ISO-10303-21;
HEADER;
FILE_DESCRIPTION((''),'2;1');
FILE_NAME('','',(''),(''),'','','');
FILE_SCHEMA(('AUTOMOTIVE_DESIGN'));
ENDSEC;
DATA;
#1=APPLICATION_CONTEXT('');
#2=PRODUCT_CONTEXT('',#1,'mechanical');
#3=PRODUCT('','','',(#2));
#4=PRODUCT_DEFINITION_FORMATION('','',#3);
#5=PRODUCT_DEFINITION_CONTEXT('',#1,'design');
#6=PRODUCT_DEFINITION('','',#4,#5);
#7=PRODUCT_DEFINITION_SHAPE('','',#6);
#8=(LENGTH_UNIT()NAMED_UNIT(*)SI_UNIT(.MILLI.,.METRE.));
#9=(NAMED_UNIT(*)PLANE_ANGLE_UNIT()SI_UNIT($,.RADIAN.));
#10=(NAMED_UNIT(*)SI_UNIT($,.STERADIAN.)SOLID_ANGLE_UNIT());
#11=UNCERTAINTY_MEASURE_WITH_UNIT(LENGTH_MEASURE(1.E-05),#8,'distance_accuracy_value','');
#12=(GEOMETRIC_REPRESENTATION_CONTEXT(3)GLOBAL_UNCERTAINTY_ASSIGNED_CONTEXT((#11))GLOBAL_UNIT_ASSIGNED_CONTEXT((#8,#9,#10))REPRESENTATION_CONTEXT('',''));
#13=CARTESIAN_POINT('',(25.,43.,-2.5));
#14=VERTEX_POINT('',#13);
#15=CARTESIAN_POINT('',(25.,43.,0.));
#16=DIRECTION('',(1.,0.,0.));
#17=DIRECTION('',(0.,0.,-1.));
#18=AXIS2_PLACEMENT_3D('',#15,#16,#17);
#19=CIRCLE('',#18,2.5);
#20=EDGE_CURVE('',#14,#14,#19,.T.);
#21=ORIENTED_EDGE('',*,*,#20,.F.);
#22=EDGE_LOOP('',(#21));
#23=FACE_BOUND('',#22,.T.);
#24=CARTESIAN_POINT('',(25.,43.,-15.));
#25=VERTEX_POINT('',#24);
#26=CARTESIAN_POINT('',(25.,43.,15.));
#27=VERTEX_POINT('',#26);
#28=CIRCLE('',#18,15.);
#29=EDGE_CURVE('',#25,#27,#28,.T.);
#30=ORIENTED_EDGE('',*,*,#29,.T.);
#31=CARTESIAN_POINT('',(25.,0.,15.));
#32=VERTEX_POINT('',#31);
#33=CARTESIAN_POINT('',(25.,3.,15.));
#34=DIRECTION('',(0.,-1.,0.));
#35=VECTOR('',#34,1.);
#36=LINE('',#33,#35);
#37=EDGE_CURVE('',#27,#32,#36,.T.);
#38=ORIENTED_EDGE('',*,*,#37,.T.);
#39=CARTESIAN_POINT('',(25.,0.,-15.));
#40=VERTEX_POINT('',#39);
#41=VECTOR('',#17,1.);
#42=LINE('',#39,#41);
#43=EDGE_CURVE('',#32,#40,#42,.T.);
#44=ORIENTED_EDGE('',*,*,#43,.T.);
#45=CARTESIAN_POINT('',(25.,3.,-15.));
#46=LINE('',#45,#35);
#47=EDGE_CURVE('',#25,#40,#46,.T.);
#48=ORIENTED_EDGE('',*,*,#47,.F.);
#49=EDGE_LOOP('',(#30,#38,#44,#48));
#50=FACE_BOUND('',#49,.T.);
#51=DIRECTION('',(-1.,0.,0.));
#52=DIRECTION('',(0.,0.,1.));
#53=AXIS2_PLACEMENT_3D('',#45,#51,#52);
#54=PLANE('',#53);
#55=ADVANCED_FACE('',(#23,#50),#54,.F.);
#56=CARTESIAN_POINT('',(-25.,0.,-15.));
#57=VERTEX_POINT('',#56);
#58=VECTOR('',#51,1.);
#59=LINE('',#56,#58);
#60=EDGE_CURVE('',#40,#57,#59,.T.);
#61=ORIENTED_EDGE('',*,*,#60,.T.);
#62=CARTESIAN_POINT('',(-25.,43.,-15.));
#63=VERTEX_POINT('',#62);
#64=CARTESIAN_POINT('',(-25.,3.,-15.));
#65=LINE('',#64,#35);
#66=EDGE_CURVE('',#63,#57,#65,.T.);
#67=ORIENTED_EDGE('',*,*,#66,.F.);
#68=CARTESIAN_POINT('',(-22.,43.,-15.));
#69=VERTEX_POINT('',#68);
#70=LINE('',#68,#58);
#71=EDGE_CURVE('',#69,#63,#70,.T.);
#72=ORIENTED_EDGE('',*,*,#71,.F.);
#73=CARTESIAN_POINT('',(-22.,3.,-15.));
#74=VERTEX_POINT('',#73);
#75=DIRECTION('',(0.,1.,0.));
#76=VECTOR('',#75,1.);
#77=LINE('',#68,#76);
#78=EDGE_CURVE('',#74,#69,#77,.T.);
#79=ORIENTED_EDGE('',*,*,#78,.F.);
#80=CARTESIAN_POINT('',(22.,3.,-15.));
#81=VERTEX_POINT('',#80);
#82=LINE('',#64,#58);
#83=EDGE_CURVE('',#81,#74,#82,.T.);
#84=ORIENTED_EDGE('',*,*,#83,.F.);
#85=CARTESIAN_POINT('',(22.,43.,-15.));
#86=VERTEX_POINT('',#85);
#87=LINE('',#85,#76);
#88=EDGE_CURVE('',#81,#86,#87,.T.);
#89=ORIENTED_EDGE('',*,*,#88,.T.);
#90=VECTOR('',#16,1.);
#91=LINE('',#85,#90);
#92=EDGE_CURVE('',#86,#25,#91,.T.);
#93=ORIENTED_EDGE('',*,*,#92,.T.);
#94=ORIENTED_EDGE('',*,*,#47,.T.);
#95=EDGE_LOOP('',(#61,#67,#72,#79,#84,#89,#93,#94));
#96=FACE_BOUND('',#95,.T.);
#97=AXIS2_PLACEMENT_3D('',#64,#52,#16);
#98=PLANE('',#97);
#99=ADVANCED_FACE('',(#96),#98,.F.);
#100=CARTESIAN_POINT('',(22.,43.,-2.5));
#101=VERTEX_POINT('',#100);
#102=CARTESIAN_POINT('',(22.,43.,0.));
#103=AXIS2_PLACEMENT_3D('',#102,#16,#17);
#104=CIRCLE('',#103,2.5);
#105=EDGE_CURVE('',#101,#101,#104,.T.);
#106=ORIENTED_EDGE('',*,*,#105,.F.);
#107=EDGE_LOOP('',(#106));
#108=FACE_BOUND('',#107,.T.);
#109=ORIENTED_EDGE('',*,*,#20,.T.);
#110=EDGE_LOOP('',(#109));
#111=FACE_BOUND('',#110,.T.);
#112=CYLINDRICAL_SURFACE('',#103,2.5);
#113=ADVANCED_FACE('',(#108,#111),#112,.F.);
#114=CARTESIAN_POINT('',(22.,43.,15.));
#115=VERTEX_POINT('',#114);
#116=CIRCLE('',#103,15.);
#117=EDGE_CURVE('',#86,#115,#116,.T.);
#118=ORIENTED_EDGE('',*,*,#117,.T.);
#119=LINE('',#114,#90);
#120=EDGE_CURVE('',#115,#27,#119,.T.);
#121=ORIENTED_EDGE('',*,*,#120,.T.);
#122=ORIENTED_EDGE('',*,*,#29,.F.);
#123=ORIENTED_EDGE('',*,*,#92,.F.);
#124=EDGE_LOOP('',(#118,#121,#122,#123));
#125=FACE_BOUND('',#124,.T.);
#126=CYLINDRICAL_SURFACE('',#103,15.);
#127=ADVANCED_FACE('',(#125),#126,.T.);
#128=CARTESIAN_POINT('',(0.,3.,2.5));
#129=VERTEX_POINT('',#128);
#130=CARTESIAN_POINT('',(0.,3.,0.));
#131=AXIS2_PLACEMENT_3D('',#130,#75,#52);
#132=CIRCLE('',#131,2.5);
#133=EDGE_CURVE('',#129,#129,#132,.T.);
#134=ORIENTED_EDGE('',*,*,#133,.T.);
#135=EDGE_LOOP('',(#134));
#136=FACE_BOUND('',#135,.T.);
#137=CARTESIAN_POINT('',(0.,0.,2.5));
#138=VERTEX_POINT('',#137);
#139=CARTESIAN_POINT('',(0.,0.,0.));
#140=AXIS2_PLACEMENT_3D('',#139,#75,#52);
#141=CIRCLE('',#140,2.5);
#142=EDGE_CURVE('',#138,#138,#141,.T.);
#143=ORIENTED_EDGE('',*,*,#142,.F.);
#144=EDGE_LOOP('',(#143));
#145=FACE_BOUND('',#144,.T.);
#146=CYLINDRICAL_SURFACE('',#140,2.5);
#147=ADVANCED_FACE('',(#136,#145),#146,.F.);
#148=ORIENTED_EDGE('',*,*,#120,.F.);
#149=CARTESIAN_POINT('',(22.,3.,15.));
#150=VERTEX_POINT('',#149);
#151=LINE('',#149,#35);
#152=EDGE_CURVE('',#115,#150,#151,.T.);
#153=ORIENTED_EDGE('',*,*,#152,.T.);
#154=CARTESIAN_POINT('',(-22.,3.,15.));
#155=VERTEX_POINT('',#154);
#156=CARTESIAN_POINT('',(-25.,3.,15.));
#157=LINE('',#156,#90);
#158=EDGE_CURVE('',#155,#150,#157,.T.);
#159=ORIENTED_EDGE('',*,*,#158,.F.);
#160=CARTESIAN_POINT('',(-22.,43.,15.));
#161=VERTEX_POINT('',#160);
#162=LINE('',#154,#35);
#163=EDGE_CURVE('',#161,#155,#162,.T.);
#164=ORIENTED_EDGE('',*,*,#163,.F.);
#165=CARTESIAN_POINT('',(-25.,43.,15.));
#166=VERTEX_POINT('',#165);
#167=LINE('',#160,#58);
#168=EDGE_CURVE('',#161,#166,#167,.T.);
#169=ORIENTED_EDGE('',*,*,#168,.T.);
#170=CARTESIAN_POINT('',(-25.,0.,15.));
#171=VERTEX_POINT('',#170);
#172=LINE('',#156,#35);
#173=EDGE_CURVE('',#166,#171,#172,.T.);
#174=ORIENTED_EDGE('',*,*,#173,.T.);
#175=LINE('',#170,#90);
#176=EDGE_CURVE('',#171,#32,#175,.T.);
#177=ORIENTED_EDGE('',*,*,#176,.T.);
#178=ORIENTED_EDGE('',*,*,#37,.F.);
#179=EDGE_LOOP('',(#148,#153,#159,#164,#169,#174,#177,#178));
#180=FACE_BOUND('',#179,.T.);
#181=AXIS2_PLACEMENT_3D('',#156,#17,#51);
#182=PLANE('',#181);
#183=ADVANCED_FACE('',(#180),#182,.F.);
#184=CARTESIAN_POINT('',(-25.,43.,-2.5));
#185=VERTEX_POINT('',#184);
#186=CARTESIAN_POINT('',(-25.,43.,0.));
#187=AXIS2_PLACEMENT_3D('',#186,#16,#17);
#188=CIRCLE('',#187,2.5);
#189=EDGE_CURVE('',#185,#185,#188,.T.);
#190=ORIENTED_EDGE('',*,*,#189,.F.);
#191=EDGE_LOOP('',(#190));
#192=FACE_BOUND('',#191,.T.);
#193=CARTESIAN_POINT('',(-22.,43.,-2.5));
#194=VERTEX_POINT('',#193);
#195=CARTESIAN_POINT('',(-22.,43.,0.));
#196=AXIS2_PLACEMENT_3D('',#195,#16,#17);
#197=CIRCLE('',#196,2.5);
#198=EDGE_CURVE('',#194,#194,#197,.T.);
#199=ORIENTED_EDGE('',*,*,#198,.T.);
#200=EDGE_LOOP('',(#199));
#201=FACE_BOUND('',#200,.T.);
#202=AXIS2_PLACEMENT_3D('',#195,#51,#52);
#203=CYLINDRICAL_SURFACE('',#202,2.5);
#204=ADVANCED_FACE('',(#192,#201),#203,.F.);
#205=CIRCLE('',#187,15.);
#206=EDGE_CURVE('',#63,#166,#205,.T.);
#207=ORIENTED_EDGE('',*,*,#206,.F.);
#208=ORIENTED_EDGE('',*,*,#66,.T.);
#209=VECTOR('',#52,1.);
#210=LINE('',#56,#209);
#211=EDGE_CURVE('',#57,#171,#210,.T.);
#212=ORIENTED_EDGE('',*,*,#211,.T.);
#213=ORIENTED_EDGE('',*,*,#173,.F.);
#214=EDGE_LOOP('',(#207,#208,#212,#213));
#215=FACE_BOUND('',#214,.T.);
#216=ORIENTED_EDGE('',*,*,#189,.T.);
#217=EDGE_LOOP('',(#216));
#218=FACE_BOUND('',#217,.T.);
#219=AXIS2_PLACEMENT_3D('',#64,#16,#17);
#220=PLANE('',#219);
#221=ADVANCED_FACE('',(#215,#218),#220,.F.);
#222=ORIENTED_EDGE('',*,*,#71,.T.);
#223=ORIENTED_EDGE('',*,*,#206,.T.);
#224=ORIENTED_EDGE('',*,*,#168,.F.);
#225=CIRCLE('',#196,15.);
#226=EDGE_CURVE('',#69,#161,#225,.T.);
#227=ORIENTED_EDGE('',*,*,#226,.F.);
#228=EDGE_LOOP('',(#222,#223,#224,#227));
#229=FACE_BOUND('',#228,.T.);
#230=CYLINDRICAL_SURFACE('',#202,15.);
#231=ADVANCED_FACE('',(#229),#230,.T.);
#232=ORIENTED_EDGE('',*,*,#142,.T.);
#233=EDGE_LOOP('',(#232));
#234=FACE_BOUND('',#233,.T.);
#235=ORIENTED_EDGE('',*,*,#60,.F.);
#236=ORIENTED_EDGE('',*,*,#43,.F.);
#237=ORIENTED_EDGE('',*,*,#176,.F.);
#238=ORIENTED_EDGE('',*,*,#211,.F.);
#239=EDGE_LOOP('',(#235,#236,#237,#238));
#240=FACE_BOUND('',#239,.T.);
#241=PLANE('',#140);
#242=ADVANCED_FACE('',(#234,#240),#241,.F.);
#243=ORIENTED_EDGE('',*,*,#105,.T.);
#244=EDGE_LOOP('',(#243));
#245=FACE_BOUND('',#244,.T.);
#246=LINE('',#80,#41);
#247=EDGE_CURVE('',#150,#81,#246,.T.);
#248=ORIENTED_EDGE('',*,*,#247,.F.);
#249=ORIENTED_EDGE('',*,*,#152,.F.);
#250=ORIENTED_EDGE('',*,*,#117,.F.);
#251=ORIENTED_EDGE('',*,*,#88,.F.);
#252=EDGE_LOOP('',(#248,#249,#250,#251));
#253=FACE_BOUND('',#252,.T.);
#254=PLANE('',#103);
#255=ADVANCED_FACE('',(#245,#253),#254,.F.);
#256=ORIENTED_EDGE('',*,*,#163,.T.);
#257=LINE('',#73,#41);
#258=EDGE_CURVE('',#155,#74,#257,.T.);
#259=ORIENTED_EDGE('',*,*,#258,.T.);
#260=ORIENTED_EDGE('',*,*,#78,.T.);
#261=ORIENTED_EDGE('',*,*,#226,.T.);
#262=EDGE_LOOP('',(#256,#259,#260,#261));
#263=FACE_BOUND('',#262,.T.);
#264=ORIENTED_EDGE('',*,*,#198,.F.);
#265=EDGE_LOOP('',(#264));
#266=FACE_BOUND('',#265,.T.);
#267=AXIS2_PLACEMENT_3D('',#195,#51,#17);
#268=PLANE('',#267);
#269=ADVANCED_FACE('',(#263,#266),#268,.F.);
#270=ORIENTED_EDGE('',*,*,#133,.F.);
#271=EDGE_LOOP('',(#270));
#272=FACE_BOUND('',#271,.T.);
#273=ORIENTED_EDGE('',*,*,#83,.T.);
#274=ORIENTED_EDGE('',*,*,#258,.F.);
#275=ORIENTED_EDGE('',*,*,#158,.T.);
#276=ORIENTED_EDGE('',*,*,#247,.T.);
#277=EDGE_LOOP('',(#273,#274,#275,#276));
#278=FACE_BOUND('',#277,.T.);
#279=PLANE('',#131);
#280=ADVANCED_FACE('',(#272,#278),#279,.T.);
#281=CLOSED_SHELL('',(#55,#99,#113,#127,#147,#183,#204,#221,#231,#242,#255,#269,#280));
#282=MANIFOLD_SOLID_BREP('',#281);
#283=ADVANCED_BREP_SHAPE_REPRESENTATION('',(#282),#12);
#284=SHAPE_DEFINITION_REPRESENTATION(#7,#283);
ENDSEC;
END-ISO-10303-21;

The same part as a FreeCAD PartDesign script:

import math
import FreeCAD as App
import Part
import Sketcher
from FreeCAD import Vector
Q = App.Units.Quantity

doc = App.newDocument("Part")
body = doc.addObject("PartDesign::Body", "Body")

# Sketch on XZ plane
sketch1 = doc.addObject("Sketcher::SketchObject", "Sketch")
body.addObject(sketch1)
sketch1.AttachmentSupport = (doc.XZ_Plane, [""])
sketch1.MapMode = "FlatFace"
sketch1.addGeometry(Part.LineSegment(Vector(-25, -15, 0), Vector(-25, 15, 0)), False)
sketch1.addGeometry(Part.LineSegment(Vector(-25, 15, 0), Vector(25, 15, 0)), False)
sketch1.addGeometry(Part.LineSegment(Vector(25, 15, 0), Vector(25, -15, 0)), False)
sketch1.addGeometry(Part.LineSegment(Vector(25, -15, 0), Vector(-25, -15, 0)), False)
sketch1.addConstraint(Sketcher.Constraint("Coincident", 0, 2, 1, 1))
sketch1.addConstraint(Sketcher.Constraint("Coincident", 1, 2, 2, 1))
sketch1.addConstraint(Sketcher.Constraint("Coincident", 2, 2, 3, 1))
sketch1.addConstraint(Sketcher.Constraint("Coincident", 3, 2, 0, 1))
sketch1.addConstraint(Sketcher.Constraint("Vertical", 0))
sketch1.addConstraint(Sketcher.Constraint("Horizontal", 1))
sketch1.addConstraint(Sketcher.Constraint("Vertical", 2))
sketch1.addConstraint(Sketcher.Constraint("Horizontal", 3))
sketch1.addConstraint(Sketcher.Constraint("Symmetric", 0, 2, 2, 2, -1, 1))
sketch1.addConstraint(Sketcher.Constraint("DistanceX", 1, 1, 1, 2, Q("50 mm")))
sketch1.addConstraint(Sketcher.Constraint("DistanceY", 0, 1, 0, 2, Q("30 mm")))
pad1 = doc.addObject("PartDesign::Pad", "Pad")
body.addObject(pad1)
pad1.Profile = sketch1
pad1.Length = 3
pad1.Reversed = True

# Sketch on YZ plane
sketch2 = doc.addObject("Sketcher::SketchObject", "Sketch001")
body.addObject(sketch2)
sketch2.AttachmentSupport = (doc.YZ_Plane, [""])
sketch2.MapMode = "FlatFace"
sketch2.AttachmentOffset = App.Placement(Vector(0, 0, 25), App.Rotation())
sketch2.addGeometry(Part.LineSegment(Vector(43, 15, 0), Vector(3, 15, 0)), False)
sketch2.addGeometry(Part.LineSegment(Vector(3, 15, 0), Vector(3, -15, 0)), False)
sketch2.addGeometry(Part.LineSegment(Vector(3, -15, 0), Vector(43, -15, 0)), False)
sketch2.addGeometry(Part.ArcOfCircle(Part.Circle(Vector(43, 0, 0), Vector(0, 0, 1), 15), math.radians(-90), math.radians(90)), False)
sketch2.addGeometry(Part.Circle(Vector(43, 0, 0), Vector(0, 0, 1), 2.5), False)
sketch2.addConstraint(Sketcher.Constraint("Coincident", 0, 2, 1, 1))
sketch2.addConstraint(Sketcher.Constraint("Coincident", 1, 2, 2, 1))
sketch2.addConstraint(Sketcher.Constraint("Tangent", 2, 2, 3, 1))
sketch2.addConstraint(Sketcher.Constraint("Tangent", 3, 2, 0, 1))
sketch2.addConstraint(Sketcher.Constraint("Horizontal", 0))
sketch2.addConstraint(Sketcher.Constraint("Vertical", 1))
sketch2.addConstraint(Sketcher.Constraint("Horizontal", 2))
sketch2.addConstraint(Sketcher.Constraint("Coincident", 4, 3, 3, 3))
sketch2.addConstraint(Sketcher.Constraint("PointOnObject", 3, 3, -1))
sketch2.addConstraint(Sketcher.Constraint("Diameter", 4, Q("5 mm")))
sketch2.addConstraint(Sketcher.Constraint("Radius", 3, Q("15 mm")))
sketch2.addConstraint(Sketcher.Constraint("DistanceX", 0, 2, 0, 1, Q("40 mm")))
sketch2.addConstraint(Sketcher.Constraint("DistanceX", -1, 1, 3, 3, Q("43 mm")))
pad2 = doc.addObject("PartDesign::Pad", "Pad001")
body.addObject(pad2)
pad2.Profile = sketch2
pad2.Length = 3
pad2.Reversed = True
doc.recompute()

mirrored = doc.addObject("PartDesign::Mirrored", "Mirrored")
body.addObject(mirrored)
mirrored.Originals = [pad2]
mirrored.MirrorPlane = (doc.YZ_Plane, [""])
body.Tip = mirrored

# Sketch on XZ plane
sketch3 = doc.addObject("Sketcher::SketchObject", "Sketch002")
body.addObject(sketch3)
sketch3.AttachmentSupport = (doc.XZ_Plane, [""])
sketch3.MapMode = "FlatFace"
sketch3.AttachmentOffset = App.Placement(Vector(0, 0, -3), App.Rotation())
sketch3.addGeometry(Part.Circle(Vector(0, 0, 0), Vector(0, 0, 1), 2.5), False)
sketch3.addConstraint(Sketcher.Constraint("Coincident", 0, 3, -1, 1))
sketch3.addConstraint(Sketcher.Constraint("Diameter", 0, Q("5 mm")))
pocket1 = doc.addObject("PartDesign::Pocket", "Pocket")
body.addObject(pocket1)
pocket1.Profile = sketch3
pocket1.Length = 3
pocket1.Reversed = True

doc.recompute()
